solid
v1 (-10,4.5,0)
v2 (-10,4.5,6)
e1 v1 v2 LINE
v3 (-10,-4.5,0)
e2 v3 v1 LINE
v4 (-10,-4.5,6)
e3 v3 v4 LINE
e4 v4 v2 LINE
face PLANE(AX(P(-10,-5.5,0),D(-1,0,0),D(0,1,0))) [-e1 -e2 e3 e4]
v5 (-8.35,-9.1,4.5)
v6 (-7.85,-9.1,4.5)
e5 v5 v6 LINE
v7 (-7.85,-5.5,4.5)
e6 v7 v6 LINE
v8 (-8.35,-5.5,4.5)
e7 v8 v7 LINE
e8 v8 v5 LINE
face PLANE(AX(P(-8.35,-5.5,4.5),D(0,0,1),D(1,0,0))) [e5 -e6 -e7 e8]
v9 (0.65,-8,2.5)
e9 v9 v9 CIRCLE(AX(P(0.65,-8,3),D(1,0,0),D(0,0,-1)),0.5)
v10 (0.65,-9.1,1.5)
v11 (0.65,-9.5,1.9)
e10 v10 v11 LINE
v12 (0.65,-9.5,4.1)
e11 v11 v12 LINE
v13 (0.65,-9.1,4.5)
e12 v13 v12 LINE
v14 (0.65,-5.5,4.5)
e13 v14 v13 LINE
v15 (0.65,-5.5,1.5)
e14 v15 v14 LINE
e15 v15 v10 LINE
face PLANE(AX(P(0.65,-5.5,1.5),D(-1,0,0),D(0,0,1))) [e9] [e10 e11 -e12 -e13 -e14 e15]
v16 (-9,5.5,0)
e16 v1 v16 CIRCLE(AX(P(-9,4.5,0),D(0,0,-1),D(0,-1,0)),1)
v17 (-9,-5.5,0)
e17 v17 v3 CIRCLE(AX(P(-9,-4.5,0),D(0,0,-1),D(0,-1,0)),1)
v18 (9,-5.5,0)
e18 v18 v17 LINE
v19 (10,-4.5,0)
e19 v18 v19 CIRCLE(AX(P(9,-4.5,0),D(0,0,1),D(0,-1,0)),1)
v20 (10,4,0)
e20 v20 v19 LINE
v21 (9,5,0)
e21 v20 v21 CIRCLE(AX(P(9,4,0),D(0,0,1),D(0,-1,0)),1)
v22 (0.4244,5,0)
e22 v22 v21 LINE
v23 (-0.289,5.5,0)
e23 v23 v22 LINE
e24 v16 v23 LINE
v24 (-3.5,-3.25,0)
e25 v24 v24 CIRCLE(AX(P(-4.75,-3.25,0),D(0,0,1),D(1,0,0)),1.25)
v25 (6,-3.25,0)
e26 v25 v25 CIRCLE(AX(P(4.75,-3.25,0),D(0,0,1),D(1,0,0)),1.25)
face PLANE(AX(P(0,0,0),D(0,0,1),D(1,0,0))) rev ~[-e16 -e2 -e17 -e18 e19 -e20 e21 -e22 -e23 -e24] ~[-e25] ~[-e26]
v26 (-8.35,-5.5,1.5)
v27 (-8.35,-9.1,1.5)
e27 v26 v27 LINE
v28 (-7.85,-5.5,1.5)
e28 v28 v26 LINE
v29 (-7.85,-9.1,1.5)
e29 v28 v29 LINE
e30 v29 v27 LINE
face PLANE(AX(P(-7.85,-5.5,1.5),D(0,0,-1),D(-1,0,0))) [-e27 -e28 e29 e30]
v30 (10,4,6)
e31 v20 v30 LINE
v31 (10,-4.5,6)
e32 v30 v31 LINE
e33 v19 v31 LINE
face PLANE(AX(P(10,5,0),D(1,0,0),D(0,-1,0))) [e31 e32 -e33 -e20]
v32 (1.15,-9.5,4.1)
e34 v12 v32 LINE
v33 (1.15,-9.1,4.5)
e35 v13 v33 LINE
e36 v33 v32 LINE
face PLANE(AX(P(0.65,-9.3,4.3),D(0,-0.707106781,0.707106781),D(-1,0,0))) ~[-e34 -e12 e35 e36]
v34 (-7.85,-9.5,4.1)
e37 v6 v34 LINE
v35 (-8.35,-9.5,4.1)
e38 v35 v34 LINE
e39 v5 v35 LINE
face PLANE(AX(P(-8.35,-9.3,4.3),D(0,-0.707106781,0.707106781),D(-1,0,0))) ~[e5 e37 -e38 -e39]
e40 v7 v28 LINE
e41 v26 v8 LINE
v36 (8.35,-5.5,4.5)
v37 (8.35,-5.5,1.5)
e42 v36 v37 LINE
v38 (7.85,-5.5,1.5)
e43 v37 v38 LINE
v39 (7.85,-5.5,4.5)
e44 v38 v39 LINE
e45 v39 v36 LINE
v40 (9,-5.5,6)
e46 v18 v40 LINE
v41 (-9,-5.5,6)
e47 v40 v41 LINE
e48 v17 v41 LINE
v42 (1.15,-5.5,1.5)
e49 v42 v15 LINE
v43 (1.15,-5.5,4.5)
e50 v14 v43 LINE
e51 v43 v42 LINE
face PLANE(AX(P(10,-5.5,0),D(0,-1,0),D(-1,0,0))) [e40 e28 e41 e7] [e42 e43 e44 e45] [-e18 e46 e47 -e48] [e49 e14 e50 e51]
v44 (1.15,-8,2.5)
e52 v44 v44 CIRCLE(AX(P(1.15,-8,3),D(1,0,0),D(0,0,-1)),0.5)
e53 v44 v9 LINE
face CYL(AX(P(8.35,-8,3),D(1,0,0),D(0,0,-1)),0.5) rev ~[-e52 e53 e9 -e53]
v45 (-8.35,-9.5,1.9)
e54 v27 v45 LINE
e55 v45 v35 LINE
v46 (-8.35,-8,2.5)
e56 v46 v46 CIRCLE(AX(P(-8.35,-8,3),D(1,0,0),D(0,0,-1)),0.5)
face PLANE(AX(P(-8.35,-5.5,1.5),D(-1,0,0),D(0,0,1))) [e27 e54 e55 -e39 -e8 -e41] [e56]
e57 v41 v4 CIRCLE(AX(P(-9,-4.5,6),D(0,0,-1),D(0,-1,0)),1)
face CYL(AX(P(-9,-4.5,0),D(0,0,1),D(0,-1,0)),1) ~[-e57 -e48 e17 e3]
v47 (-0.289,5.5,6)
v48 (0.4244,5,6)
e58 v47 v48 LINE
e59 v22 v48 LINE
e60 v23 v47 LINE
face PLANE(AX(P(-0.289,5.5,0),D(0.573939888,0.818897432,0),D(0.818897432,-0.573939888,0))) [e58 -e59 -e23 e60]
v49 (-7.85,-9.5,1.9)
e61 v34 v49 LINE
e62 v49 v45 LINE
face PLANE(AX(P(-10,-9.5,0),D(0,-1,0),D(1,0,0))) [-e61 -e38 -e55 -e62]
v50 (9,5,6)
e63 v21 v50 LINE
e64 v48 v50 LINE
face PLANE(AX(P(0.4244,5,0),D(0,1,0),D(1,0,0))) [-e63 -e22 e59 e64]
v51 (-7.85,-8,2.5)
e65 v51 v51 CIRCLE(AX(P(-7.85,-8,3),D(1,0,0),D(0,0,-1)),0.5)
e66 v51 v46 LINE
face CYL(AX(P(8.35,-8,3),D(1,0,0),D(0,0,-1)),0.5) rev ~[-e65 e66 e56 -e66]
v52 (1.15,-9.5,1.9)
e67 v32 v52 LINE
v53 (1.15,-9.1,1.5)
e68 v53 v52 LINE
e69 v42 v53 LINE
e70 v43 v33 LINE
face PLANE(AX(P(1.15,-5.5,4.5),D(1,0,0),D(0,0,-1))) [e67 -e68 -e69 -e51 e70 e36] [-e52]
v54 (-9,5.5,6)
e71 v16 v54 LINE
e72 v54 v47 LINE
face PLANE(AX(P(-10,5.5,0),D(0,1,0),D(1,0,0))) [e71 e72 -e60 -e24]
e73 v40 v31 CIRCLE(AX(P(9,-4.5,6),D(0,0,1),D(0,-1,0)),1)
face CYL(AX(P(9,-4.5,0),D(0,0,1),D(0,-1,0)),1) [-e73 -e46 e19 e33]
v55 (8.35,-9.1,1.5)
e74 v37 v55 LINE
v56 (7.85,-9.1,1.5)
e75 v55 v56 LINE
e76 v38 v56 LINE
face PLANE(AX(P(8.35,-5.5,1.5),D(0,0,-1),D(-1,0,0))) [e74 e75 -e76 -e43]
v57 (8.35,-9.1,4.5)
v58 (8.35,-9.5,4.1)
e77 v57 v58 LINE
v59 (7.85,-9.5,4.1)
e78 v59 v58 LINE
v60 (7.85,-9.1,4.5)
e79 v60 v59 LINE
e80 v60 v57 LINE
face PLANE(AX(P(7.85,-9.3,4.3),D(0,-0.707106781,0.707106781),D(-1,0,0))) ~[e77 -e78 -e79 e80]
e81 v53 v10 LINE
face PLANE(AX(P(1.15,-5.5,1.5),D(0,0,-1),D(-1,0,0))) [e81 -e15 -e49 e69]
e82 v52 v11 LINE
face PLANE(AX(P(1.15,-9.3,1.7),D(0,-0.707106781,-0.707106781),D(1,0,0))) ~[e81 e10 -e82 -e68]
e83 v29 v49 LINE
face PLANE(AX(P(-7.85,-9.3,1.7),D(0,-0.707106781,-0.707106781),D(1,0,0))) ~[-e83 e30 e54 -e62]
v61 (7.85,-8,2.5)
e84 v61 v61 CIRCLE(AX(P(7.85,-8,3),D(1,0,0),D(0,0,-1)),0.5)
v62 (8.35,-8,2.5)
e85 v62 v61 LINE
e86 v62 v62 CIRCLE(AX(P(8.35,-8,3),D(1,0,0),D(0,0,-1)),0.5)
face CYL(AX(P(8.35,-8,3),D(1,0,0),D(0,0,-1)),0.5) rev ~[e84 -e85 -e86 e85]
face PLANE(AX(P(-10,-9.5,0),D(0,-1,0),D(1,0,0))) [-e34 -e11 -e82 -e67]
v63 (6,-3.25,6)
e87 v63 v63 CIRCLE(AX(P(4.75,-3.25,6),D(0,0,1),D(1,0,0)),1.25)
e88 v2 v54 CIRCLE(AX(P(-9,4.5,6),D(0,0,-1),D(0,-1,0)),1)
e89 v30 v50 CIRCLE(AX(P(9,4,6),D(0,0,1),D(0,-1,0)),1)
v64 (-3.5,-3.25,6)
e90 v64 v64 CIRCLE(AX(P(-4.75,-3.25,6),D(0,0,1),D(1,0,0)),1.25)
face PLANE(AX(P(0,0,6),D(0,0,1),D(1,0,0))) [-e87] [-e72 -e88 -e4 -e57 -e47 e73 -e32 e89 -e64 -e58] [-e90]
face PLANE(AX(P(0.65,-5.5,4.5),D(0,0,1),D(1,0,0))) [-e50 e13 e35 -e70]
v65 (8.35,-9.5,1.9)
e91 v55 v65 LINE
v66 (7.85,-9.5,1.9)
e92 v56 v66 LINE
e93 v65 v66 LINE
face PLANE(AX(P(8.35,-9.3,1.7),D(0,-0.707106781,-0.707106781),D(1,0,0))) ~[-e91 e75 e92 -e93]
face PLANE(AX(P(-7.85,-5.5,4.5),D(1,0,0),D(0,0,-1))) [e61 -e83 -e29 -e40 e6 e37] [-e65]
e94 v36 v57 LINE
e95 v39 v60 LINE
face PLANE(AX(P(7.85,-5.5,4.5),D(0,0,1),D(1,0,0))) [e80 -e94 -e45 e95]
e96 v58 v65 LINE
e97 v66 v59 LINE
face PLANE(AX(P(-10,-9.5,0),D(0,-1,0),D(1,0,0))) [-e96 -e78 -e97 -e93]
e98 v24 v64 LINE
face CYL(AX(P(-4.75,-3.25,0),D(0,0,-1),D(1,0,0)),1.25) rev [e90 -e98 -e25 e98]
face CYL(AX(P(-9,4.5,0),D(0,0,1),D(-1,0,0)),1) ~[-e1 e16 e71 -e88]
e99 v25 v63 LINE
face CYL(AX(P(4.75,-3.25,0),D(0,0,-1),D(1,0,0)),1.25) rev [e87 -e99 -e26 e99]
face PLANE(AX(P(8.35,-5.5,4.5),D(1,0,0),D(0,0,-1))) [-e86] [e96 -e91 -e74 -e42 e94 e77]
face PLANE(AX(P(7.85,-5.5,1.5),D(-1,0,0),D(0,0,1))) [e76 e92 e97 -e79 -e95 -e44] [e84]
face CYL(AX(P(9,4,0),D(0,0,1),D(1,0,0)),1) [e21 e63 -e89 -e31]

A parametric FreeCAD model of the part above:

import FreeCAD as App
import Part
import Sketcher
from FreeCAD import Vector


def edges_at(feature, points):
    """Names of the edges that pass closest to the given points."""
    edges = feature.Shape.Edges
    near = lambda p: min(range(len(edges)), key=lambda i: edges[i].distToShape(Part.Vertex(*p))[0])
    return sorted({f"Edge{near(p) + 1}" for p in points})


def add_polygon(sketch, points):
    """Adds a closed chain of lines whose ends are joined by coincident constraints."""
    first, n = sketch.GeometryCount, len(points)
    for a, b in zip(points, points[1:] + points[:1]):
        sketch.addGeometry(Part.LineSegment(App.Vector(*a, 0), App.Vector(*b, 0)), False)
    for i in range(n):
        sketch.addConstraint(Sketcher.Constraint("Coincident", first + i, 2, first + (i + 1) % n, 1))

doc = App.newDocument("Part")
body = doc.addObject("PartDesign::Body", "Body")

# Sketch on XY plane
sketch1 = body.newObject("Sketcher::SketchObject", "Sketch")
sketch1.AttachmentSupport = (doc.getObject("XY_Plane"), [""])
sketch1.MapMode = "FlatFace"
add_polygon(sketch1, [(-0.289, 5.5), (-10, 5.5), (-10, -5.5), (10, -5.5), (10, 5), (0.4244, 5)])  # lines 0-5
sketch1.addGeometry(Part.Circle(Vector(-4.75, -3.25, 0), Vector(0, 0, 1), 1.25), False)  # 6
sketch1.addGeometry(Part.Circle(Vector(4.75, -3.25, 0), Vector(0, 0, 1), 1.25), False)  # 7
sketch1.addConstraint([
    Sketcher.Constraint("Horizontal", 0),
    Sketcher.Constraint("Vertical", 1),
    Sketcher.Constraint("Horizontal", 2),
    Sketcher.Constraint("Vertical", 3),
    Sketcher.Constraint("Horizontal", 4),
    Sketcher.Constraint("Equal", 6, 7),
    Sketcher.Constraint("Symmetric", 0, 2, 2, 2, -1, 1),
    Sketcher.Constraint("Symmetric", 6, 3, 7, 3, -2),
    Sketcher.Constraint("Diameter", 6, 2.5),
    Sketcher.Constraint("DistanceX", 2, 1, 2, 2, 20.0),
    Sketcher.Constraint("DistanceY", 1, 2, 1, 1, 11.0),
    Sketcher.Constraint("DistanceY", 3, 1, 3, 2, 10.5),
    Sketcher.Constraint("DistanceX", 0, 2, 6, 3, 5.25),
    Sketcher.Constraint("DistanceY", 1, 2, 6, 3, 2.25),
    Sketcher.Constraint("DistanceX", 5, 2, 4, 2, 0.7134),
    Sketcher.Constraint("DistanceX", 0, 2, 0, 1, 9.711),
])
pad1 = body.newObject("PartDesign::Pad", "Pad")
pad1.Profile = sketch1
pad1.Length = 6

# Sketch on XZ plane
sketch2 = body.newObject("Sketcher::SketchObject", "Sketch001")
sketch2.AttachmentSupport = (doc.getObject("XZ_Plane"), [""])
sketch2.MapMode = "FlatFace"
sketch2.AttachmentOffset = App.Placement(Vector(0, 0, 5.5), App.Rotation())
add_polygon(sketch2, [(-7.85, 4.5), (-8.35, 4.5), (-8.35, 1.5), (-7.85, 1.5)])  # lines 0-3
add_polygon(sketch2, [(1.15, 4.5), (0.65, 4.5), (0.65, 1.5), (1.15, 1.5)])  # lines 4-7
add_polygon(sketch2, [(8.35, 4.5), (7.85, 4.5), (7.85, 1.5), (8.35, 1.5)])  # lines 8-11
sketch2.addConstraint([
    Sketcher.Constraint("Horizontal", 0),
    Sketcher.Constraint("Vertical", 1),
    Sketcher.Constraint("Horizontal", 2),
    Sketcher.Constraint("Vertical", 3),
    Sketcher.Constraint("Horizontal", 4),
    Sketcher.Constraint("Vertical", 5),
    Sketcher.Constraint("Horizontal", 6),
    Sketcher.Constraint("Vertical", 7),
    Sketcher.Constraint("Horizontal", 8),
    Sketcher.Constraint("Vertical", 9),
    Sketcher.Constraint("Horizontal", 10),
    Sketcher.Constraint("Vertical", 11),
    Sketcher.Constraint("Symmetric", 3, 2, 8, 2, -2),
    Sketcher.Constraint("Symmetric", 1, 2, 10, 2, -2),
    Sketcher.Constraint("Horizontal", 3, 2, 4, 2),
    Sketcher.Constraint("Horizontal", 2, 2, 5, 2),
    Sketcher.Constraint("Equal", 2, 4),
    Sketcher.Constraint("DistanceY", 1, 2, 1, 1, 3.0),
    Sketcher.Constraint("DistanceX", 0, 2, 0, 1, 0.5),
    Sketcher.Constraint("DistanceY", -1, 1, 1, 2, 1.5),
    Sketcher.Constraint("DistanceX", 3, 2, 4, 2, 8.5),
    Sketcher.Constraint("DistanceX", 7, 2, 8, 2, 6.7),
])
pad2 = body.newObject("PartDesign::Pad", "Pad001")
pad2.Profile = sketch2
pad2.Length = 4

# Sketch on YZ plane
sketch3 = body.newObject("Sketcher::SketchObject", "Sketch002")
sketch3.AttachmentSupport = (doc.getObject("YZ_Plane"), [""])
sketch3.MapMode = "FlatFace"
sketch3.AttachmentOffset = App.Placement(Vector(0, 0, 8.35), App.Rotation())
sketch3.addGeometry(Part.Circle(Vector(-8, 3, 0), Vector(0, 0, 1), 0.5), False)
sketch3.addConstraint([
    Sketcher.Constraint("Diameter", 0, 1.0),
    Sketcher.Constraint("DistanceY", -1, 1, 0, 3, 3.0),
    Sketcher.Constraint("DistanceX", 0, 3, -1, 1, 8.0),
])
pocket1 = body.newObject("PartDesign::Pocket", "Pocket")
pocket1.Profile = sketch3
pocket1.Type = "ThroughAll"
doc.recompute()

chamfer = body.newObject("PartDesign::Chamfer", "Chamfer")
chamfer.Base = (pocket1, edges_at(pocket1, [
    (8.1, -9.5, 4.5),
    (8.1, -9.5, 1.5),
    (0.9, -9.5, 1.5),
    (0.9, -9.5, 4.5),
    (-8.1, -9.5, 4.5),
    (-8.1, -9.5, 1.5),
]))
chamfer.Size = 0.4
doc.recompute()

fillet = body.newObject("PartDesign::Fillet", "Fillet")
fillet.Base = (chamfer, edges_at(chamfer, [
    (10, 5, 3),
    (10, -5.5, 3),
    (-10, -5.5, 3),
    (-10, 5.5, 3),
]))
fillet.Radius = 1

doc.recompute()
